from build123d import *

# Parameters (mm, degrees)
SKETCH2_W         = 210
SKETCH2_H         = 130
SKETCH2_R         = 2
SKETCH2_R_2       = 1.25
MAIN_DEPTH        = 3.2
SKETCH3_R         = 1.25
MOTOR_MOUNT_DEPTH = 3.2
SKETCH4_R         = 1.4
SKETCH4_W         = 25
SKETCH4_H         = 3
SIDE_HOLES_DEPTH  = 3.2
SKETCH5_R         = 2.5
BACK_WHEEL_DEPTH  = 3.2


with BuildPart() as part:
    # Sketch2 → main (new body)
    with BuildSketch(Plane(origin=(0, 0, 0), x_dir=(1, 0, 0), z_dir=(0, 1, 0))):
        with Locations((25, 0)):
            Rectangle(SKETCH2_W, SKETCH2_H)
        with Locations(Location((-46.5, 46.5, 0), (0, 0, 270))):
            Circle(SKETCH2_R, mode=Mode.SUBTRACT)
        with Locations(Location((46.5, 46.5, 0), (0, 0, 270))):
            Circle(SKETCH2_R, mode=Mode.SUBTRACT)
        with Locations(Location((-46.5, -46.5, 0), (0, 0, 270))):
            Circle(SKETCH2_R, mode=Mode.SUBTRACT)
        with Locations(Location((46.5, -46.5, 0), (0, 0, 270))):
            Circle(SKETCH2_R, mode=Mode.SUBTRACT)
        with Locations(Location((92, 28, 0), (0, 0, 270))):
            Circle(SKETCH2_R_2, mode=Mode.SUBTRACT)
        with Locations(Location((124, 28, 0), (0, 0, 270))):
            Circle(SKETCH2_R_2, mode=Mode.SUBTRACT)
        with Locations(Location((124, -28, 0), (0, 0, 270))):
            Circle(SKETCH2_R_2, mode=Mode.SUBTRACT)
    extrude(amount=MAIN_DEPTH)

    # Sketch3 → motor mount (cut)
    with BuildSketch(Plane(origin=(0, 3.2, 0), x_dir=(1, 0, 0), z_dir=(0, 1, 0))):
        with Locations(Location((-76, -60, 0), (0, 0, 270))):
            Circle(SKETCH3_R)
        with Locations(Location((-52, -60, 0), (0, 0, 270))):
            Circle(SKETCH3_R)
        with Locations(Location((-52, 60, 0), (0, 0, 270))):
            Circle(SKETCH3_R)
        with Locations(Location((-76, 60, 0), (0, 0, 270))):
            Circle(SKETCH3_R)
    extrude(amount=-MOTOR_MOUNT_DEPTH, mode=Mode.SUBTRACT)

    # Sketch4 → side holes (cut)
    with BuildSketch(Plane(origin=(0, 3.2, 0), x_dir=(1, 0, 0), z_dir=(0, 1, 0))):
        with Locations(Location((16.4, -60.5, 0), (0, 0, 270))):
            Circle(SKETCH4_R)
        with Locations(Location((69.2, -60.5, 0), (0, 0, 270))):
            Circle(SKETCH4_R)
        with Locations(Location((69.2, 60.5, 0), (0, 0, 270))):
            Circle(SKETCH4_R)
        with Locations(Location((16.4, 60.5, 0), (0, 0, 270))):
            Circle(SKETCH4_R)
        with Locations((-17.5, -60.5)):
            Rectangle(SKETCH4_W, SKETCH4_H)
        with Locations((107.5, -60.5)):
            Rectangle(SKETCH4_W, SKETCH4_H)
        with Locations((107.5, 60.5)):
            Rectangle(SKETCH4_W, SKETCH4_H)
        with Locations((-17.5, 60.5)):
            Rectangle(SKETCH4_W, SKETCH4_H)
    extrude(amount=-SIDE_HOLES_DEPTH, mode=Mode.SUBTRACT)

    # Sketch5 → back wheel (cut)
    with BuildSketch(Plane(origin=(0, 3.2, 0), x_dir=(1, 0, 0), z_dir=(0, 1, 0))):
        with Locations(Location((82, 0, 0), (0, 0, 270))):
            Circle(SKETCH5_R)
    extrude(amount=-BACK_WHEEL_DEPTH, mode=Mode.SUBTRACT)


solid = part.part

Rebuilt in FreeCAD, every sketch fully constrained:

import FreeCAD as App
import Part
import Sketcher
from FreeCAD import Vector
Q = App.Units.Quantity

doc = App.newDocument("Part")
body = doc.addObject("PartDesign::Body", "Body")

# Sketch on XZ plane
sketch1 = body.newObject("Sketcher::SketchObject", "Sketch")
sketch1.AttachmentSupport = (doc.getObject("XZ_Plane"), [""])
sketch1.MapMode = "FlatFace"
sketch1.addGeometry(Part.LineSegment(Vector(-80, -65, 0), Vector(-80, 65, 0)), False)
sketch1.addGeometry(Part.LineSegment(Vector(-80, 65, 0), Vector(130, 65, 0)), False)
sketch1.addGeometry(Part.LineSegment(Vector(130, 65, 0), Vector(130, -65, 0)), False)
sketch1.addGeometry(Part.LineSegment(Vector(130, -65, 0), Vector(-80, -65, 0)), False)
sketch1.addGeometry(Part.Circle(Vector(-46.5, 46.5, 0), Vector(0, 0, 1), 2), False)
sketch1.addGeometry(Part.Circle(Vector(46.5, 46.5, 0), Vector(0, 0, 1), 2), False)
sketch1.addGeometry(Part.Circle(Vector(124, 28, 0), Vector(0, 0, 1), 1.2), False)
sketch1.addGeometry(Part.Circle(Vector(-46.5, -46.5, 0), Vector(0, 0, 1), 2), False)
sketch1.addGeometry(Part.Circle(Vector(46.5, -46.5, 0), Vector(0, 0, 1), 2), False)
sketch1.addGeometry(Part.Circle(Vector(92, -28, 0), Vector(0, 0, 1), 1.2), False)
sketch1.addGeometry(Part.Circle(Vector(124, -28, 0), Vector(0, 0, 1), 1.2), False)
sketch1.addConstraint(Sketcher.Constraint("Coincident", 0, 2, 1, 1))
sketch1.addConstraint(Sketcher.Constraint("Coincident", 1, 2, 2, 1))
sketch1.addConstraint(Sketcher.Constraint("Coincident", 2, 2, 3, 1))
sketch1.addConstraint(Sketcher.Constraint("Coincident", 3, 2, 0, 1))
sketch1.addConstraint(Sketcher.Constraint("Vertical", 0))
sketch1.addConstraint(Sketcher.Constraint("Horizontal", 1))
sketch1.addConstraint(Sketcher.Constraint("Vertical", 2))
sketch1.addConstraint(Sketcher.Constraint("Horizontal", 3))
sketch1.addConstraint(Sketcher.Constraint("Equal", 4, 5))
sketch1.addConstraint(Sketcher.Constraint("Equal", 5, 7))
sketch1.addConstraint(Sketcher.Constraint("Equal", 7, 8))
sketch1.addConstraint(Sketcher.Constraint("Equal", 6, 9))
sketch1.addConstraint(Sketcher.Constraint("Equal", 9, 10))
sketch1.addConstraint(Sketcher.Constraint("Symmetric", 5, 3, 7, 3, -1, 1))
sketch1.addConstraint(Sketcher.Constraint("Symmetric", 4, 3, 8, 3, -1, 1))
sketch1.addConstraint(Sketcher.Constraint("Symmetric", 4, 3, 5, 3, -2))
sketch1.addConstraint(Sketcher.Constraint("Symmetric", 6, 3, 10, 3, -1))
sketch1.addConstraint(Sketcher.Constraint("Horizontal", 9, 3, 10, 3))
sketch1.addConstraint(Sketcher.Constraint("Diameter", 4, Q("4 mm")))
sketch1.addConstraint(Sketcher.Constraint("Diameter", 6, Q("2.5 mm")))
sketch1.addConstraint(Sketcher.Constraint("DistanceX", 1, 1, 1, 2, Q("210 mm")))
sketch1.addConstraint(Sketcher.Constraint("DistanceY", 0, 1, 0, 2, Q("130 mm")))
sketch1.addConstraint(Sketcher.Constraint("DistanceX", -1, 1, 6, 3, Q("124 mm")))
sketch1.addConstraint(Sketcher.Constraint("DistanceY", -1, 1, 6, 3, Q("28 mm")))
sketch1.addConstraint(Sketcher.Constraint("DistanceX", -1, 1, 9, 3, Q("92 mm")))
sketch1.addConstraint(Sketcher.Constraint("DistanceX", 0, 2, -1, 1, Q("80 mm")))
sketch1.addConstraint(Sketcher.Constraint("DistanceY", -1, 1, 0, 2, Q("65 mm")))
sketch1.addConstraint(Sketcher.Constraint("DistanceX", 4, 3, 5, 3, Q("93 mm")))
sketch1.addConstraint(Sketcher.Constraint("DistanceY", 7, 3, 4, 3, Q("93 mm")))
pad1 = body.newObject("PartDesign::Pad", "Pad")
pad1.Profile = sketch1
pad1.Length = 3.2
pad1.Reversed = True

# Sketch on XZ plane
sketch2 = body.newObject("Sketcher::SketchObject", "Sketch001")
sketch2.AttachmentSupport = (doc.getObject("XZ_Plane"), [""])
sketch2.MapMode = "FlatFace"
sketch2.AttachmentOffset = App.Placement(Vector(0, 0, -3.2), App.Rotation())
sketch2.addGeometry(Part.Circle(Vector(-76, 60, 0), Vector(0, 0, 1), 1.2), False)
sketch2.addGeometry(Part.Circle(Vector(-52, 60, 0), Vector(0, 0, 1), 1.2), False)
sketch2.addGeometry(Part.Circle(Vector(-52, -60, 0), Vector(0, 0, 1), 1.2), False)
sketch2.addGeometry(Part.Circle(Vector(-76, -60, 0), Vector(0, 0, 1), 1.2), False)
sketch2.addConstraint(Sketcher.Constraint("Equal", 0, 1))
sketch2.addConstraint(Sketcher.Constraint("Equal", 1, 2))
sketch2.addConstraint(Sketcher.Constraint("Equal", 2, 3))
sketch2.addConstraint(Sketcher.Constraint("Symmetric", 1, 3, 2, 3, -1))
sketch2.addConstraint(Sketcher.Constraint("Symmetric", 0, 3, 3, 3, -1))
sketch2.addConstraint(Sketcher.Constraint("Horizontal", 0, 3, 1, 3))
sketch2.addConstraint(Sketcher.Constraint("Diameter", 0, Q("2.5 mm")))
sketch2.addConstraint(Sketcher.Constraint("DistanceX", 0, 3, -1, 1, Q("76 mm")))
sketch2.addConstraint(Sketcher.Constraint("DistanceY", -1, 1, 0, 3, Q("60 mm")))
sketch2.addConstraint(Sketcher.Constraint("DistanceX", 1, 3, -1, 1, Q("52 mm")))
pocket1 = body.newObject("PartDesign::Pocket", "Pocket")
pocket1.Profile = sketch2
pocket1.Length = 3.2
pocket1.Reversed = True

# Sketch on XZ plane
sketch3 = body.newObject("Sketcher::SketchObject", "Sketch002")
sketch3.AttachmentSupport = (doc.getObject("XZ_Plane"), [""])
sketch3.MapMode = "FlatFace"
sketch3.AttachmentOffset = App.Placement(Vector(0, 0, -3.2), App.Rotation())
sketch3.addGeometry(Part.Circle(Vector(16.4, 60.5, 0), Vector(0, 0, 1), 1.4), False)
sketch3.addGeometry(Part.Circle(Vector(69.2, 60.5, 0), Vector(0, 0, 1), 1.4), False)
sketch3.addGeometry(Part.Circle(Vector(69.2, -60.5, 0), Vector(0, 0, 1), 1.4), False)
sketch3.addGeometry(Part.Circle(Vector(16.4, -60.5, 0), Vector(0, 0, 1), 1.4), False)
sketch3.addGeometry(Part.LineSegment(Vector(-30, 59, 0), Vector(-30, 62, 0)), False)
sketch3.addGeometry(Part.LineSegment(Vector(-30, 62, 0), Vector(-5, 62, 0)), False)
sketch3.addGeometry(Part.LineSegment(Vector(-5, 62, 0), Vector(-5, 59, 0)), False)
sketch3.addGeometry(Part.LineSegment(Vector(-5, 59, 0), Vector(-30, 59, 0)), False)
sketch3.addGeometry(Part.LineSegment(Vector(95, 59, 0), Vector(95, 62, 0)), False)
sketch3.addGeometry(Part.LineSegment(Vector(95, 62, 0), Vector(120, 62, 0)), False)
sketch3.addGeometry(Part.LineSegment(Vector(120, 62, 0), Vector(120, 59, 0)), False)
sketch3.addGeometry(Part.LineSegment(Vector(120, 59, 0), Vector(95, 59, 0)), False)
sketch3.addGeometry(Part.LineSegment(Vector(95, -62, 0), Vector(95, -59, 0)), False)
sketch3.addGeometry(Part.LineSegment(Vector(95, -59, 0), Vector(120, -59, 0)), False)
sketch3.addGeometry(Part.LineSegment(Vector(120, -59, 0), Vector(120, -62, 0)), False)
sketch3.addGeometry(Part.LineSegment(Vector(120, -62, 0), Vector(95, -62, 0)), False)
sketch3.addGeometry(Part.LineSegment(Vector(-30, -62, 0), Vector(-30, -59, 0)), False)
sketch3.addGeometry(Part.LineSegment(Vector(-30, -59, 0), Vector(-5, -59, 0)), False)
sketch3.addGeometry(Part.LineSegment(Vector(-5, -59, 0), Vector(-5, -62, 0)), False)
sketch3.addGeometry(Part.LineSegment(Vector(-5, -62, 0), Vector(-30, -62, 0)), False)
sketch3.addConstraint(Sketcher.Constraint("Coincident", 4, 2, 5, 1))
sketch3.addConstraint(Sketcher.Constraint("Coincident", 5, 2, 6, 1))
sketch3.addConstraint(Sketcher.Constraint("Coincident", 6, 2, 7, 1))
sketch3.addConstraint(Sketcher.Constraint("Coincident", 7, 2, 4, 1))
sketch3.addConstraint(Sketcher.Constraint("Coincident", 8, 2, 9, 1))
sketch3.addConstraint(Sketcher.Constraint("Coincident", 9, 2, 10, 1))
sketch3.addConstraint(Sketcher.Constraint("Coincident", 10, 2, 11, 1))
sketch3.addConstraint(Sketcher.Constraint("Coincident", 11, 2, 8, 1))
sketch3.addConstraint(Sketcher.Constraint("Coincident", 12, 2, 13, 1))
sketch3.addConstraint(Sketcher.Constraint("Coincident", 13, 2, 14, 1))
sketch3.addConstraint(Sketcher.Constraint("Coincident", 14, 2, 15, 1))
sketch3.addConstraint(Sketcher.Constraint("Coincident", 15, 2, 12, 1))
sketch3.addConstraint(Sketcher.Constraint("Coincident", 16, 2, 17, 1))
sketch3.addConstraint(Sketcher.Constraint("Coincident", 17, 2, 18, 1))
sketch3.addConstraint(Sketcher.Constraint("Coincident", 18, 2, 19, 1))
sketch3.addConstraint(Sketcher.Constraint("Coincident", 19, 2, 16, 1))
sketch3.addConstraint(Sketcher.Constraint("Vertical", 4))
sketch3.addConstraint(Sketcher.Constraint("Horizontal", 5))
sketch3.addConstraint(Sketcher.Constraint("Vertical", 6))
sketch3.addConstraint(Sketcher.Constraint("Horizontal", 7))
sketch3.addConstraint(Sketcher.Constraint("Vertical", 8))
sketch3.addConstraint(Sketcher.Constraint("Horizontal", 9))
sketch3.addConstraint(Sketcher.Constraint("Vertical", 10))
sketch3.addConstraint(Sketcher.Constraint("Horizontal", 11))
sketch3.addConstraint(Sketcher.Constraint("Vertical", 12))
sketch3.addConstraint(Sketcher.Constraint("Horizontal", 13))
sketch3.addConstraint(Sketcher.Constraint("Vertical", 14))
sketch3.addConstraint(Sketcher.Constraint("Horizontal", 15))
sketch3.addConstraint(Sketcher.Constraint("Vertical", 16))
sketch3.addConstraint(Sketcher.Constraint("Horizontal", 17))
sketch3.addConstraint(Sketcher.Constraint("Vertical", 18))
sketch3.addConstraint(Sketcher.Constraint("Horizontal", 19))
sketch3.addConstraint(Sketcher.Constraint("Equal", 0, 1))
sketch3.addConstraint(Sketcher.Constraint("Equal", 1, 2))
sketch3.addConstraint(Sketcher.Constraint("Equal", 2, 3))
sketch3.addConstraint(Sketcher.Constraint("Symmetric", 1, 3, 2, 3, -1))
sketch3.addConstraint(Sketcher.Constraint("Symmetric", 0, 3, 3, 3, -1))
sketch3.addConstraint(Sketcher.Constraint("Symmetric", 11, 2, 12, 2, -1))
sketch3.addConstraint(Sketcher.Constraint("Symmetric", 9, 2, 14, 2, -1))
sketch3.addConstraint(Sketcher.Constraint("Symmetric", 7, 2, 16, 2, -1))
sketch3.addConstraint(Sketcher.Constraint("Symmetric", 5, 2, 18, 2, -1))
sketch3.addConstraint(Sketcher.Constraint("Horizontal", 0, 3, 1, 3))
sketch3.addConstraint(Sketcher.Constraint("Horizontal", 5, 2, 8, 2))
sketch3.addConstraint(Sketcher.Constraint("Horizontal", 7, 2, 10, 2))
sketch3.addConstraint(Sketcher.Constraint("Equal", 7, 9))
sketch3.addConstraint(Sketcher.Constraint("Diameter", 0, Q("2.8 mm")))
sketch3.addConstraint(Sketcher.Constraint("DistanceX", 5, 1, 5, 2, Q("25 mm")))
sketch3.addConstraint(Sketcher.Constraint("DistanceY", 4, 1, 4, 2, Q("3 mm")))
sketch3.addConstraint(Sketcher.Constraint("DistanceX", 4, 2, -1, 1, Q("30 mm")))
sketch3.addConstraint(Sketcher.Constraint("DistanceY", -1, 1, 4, 2, Q("62 mm")))
sketch3.addConstraint(Sketcher.Constraint("DistanceX", -1, 1, 8, 2, Q("95 mm")))
sketch3.addConstraint(Sketcher.Constraint("DistanceY", 2, 3, 1, 3, Q("121 mm")))
sketch3.addConstraint(Sketcher.Constraint("DistanceX", -1, 1, 0, 3, Q("16.4 mm")))
sketch3.addConstraint(Sketcher.Constraint("DistanceX", -1, 1, 1, 3, Q("69.2 mm")))
pocket2 = body.newObject("PartDesign::Pocket", "Pocket001")
pocket2.Profile = sketch3
pocket2.Length = 3.2
pocket2.Reversed = True

# Sketch on XZ plane
sketch4 = body.newObject("Sketcher::SketchObject", "Sketch003")
sketch4.AttachmentSupport = (doc.getObject("XZ_Plane"), [""])
sketch4.MapMode = "FlatFace"
sketch4.AttachmentOffset = App.Placement(Vector(0, 0, -3.2), App.Rotation())
sketch4.addGeometry(Part.Circle(Vector(82, 0, 0), Vector(0, 0, 1), 2.5), False)
sketch4.addConstraint(Sketcher.Constraint("PointOnObject", 0, 3, -1))
sketch4.addConstraint(Sketcher.Constraint("Diameter", 0, Q("5 mm")))
sketch4.addConstraint(Sketcher.Constraint("DistanceX", -1, 1, 0, 3, Q("82 mm")))
pocket3 = body.newObject("PartDesign::Pocket", "Pocket002")
pocket3.Profile = sketch4
pocket3.Length = 3.2
pocket3.Reversed = True

doc.recompute()
